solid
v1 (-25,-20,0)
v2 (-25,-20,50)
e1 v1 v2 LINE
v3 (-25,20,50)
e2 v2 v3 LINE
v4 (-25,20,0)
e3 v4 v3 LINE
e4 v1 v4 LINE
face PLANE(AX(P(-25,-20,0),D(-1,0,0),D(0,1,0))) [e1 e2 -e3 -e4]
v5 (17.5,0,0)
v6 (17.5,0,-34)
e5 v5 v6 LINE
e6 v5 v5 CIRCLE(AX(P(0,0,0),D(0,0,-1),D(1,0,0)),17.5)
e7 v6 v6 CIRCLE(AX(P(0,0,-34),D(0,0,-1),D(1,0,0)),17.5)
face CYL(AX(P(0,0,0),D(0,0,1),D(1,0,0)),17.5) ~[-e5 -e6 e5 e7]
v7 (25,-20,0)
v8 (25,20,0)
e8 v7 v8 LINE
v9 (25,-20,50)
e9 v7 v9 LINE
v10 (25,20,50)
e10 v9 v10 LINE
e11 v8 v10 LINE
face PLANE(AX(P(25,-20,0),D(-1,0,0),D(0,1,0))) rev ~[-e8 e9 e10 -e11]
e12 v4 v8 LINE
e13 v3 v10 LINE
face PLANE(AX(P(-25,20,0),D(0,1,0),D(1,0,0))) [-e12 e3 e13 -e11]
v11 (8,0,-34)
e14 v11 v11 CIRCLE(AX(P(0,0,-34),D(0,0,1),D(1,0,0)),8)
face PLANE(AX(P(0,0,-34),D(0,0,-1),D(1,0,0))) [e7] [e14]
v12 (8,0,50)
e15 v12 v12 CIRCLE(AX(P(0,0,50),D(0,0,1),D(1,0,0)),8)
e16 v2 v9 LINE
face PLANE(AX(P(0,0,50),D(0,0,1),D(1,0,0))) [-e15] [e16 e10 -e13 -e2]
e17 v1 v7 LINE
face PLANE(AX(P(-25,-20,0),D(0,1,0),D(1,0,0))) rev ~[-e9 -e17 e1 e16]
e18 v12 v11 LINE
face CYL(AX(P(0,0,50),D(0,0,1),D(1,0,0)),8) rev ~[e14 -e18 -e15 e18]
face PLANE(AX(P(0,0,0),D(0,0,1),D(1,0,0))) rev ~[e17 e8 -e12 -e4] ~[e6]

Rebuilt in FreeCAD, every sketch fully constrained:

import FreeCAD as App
import Part
import Sketcher

V = App.Vector

doc = App.newDocument("Part")
body = doc.addObject("PartDesign::Body", "Body")

# Sketch on XY plane
sketch1 = body.newObject("Sketcher::SketchObject", "Sketch")
sketch1.AttachmentSupport = (doc.getObject("XY_Plane"), [""])
sketch1.MapMode = "FlatFace"
sketch1.addGeometry([
    Part.LineSegment(V(-25, 20, 0), V(-25, -20, 0)),
    Part.LineSegment(V(-25, -20, 0), V(25, -20, 0)),
    Part.LineSegment(V(25, -20, 0), V(25, 20, 0)),
    Part.LineSegment(V(25, 20, 0), V(-25, 20, 0)),
], False)
sketch1.addConstraint([
    Sketcher.Constraint("Coincident", 0, 2, 1, 1),
    Sketcher.Constraint("Coincident", 1, 2, 2, 1),
    Sketcher.Constraint("Coincident", 2, 2, 3, 1),
    Sketcher.Constraint("Coincident", 3, 2, 0, 1),
    Sketcher.Constraint("Vertical", 0),
    Sketcher.Constraint("Horizontal", 1),
    Sketcher.Constraint("Vertical", 2),
    Sketcher.Constraint("Horizontal", 3),
    Sketcher.Constraint("Symmetric", 0, 2, 2, 2, -1, 1),
    Sketcher.Constraint("DistanceX", 1, 1, 1, 2, 50.0),
    Sketcher.Constraint("DistanceY", 0, 2, 0, 1, 40.0),
])
pad1 = body.newObject("PartDesign::Pad", "Pad")
pad1.Profile = sketch1
pad1.Length = 50

# Sketch on XY plane
sketch2 = body.newObject("Sketcher::SketchObject", "Sketch001")
sketch2.AttachmentSupport = (doc.getObject("XY_Plane"), [""])
sketch2.MapMode = "FlatFace"
sketch2.addGeometry(Part.Circle(V(0, 0, 0), V(0, 0, 1), 17.5), False)
sketch2.addConstraint([
    Sketcher.Constraint("Coincident", 0, 3, -1, 1),
    Sketcher.Constraint("Diameter", 0, 35.0),
])
pad2 = body.newObject("PartDesign::Pad", "Pad001")
pad2.Profile = sketch2
pad2.Length = 34
pad2.Reversed = True

# Sketch on XY plane
sketch3 = body.newObject("Sketcher::SketchObject", "Sketch002")
sketch3.AttachmentSupport = (doc.getObject("XY_Plane"), [""])
sketch3.MapMode = "FlatFace"
sketch3.AttachmentOffset = App.Placement(V(0, 0, 50), App.Rotation())
sketch3.addGeometry(Part.Circle(V(0, 0, 0), V(0, 0, 1), 8), False)
sketch3.addConstraint([
    Sketcher.Constraint("Coincident", 0, 3, -1, 1),
    Sketcher.Constraint("Diameter", 0, 16.0),
])
pocket1 = body.newObject("PartDesign::Pocket", "Pocket")
pocket1.Profile = sketch3
pocket1.Type = "ThroughAll"

doc.recompute()
